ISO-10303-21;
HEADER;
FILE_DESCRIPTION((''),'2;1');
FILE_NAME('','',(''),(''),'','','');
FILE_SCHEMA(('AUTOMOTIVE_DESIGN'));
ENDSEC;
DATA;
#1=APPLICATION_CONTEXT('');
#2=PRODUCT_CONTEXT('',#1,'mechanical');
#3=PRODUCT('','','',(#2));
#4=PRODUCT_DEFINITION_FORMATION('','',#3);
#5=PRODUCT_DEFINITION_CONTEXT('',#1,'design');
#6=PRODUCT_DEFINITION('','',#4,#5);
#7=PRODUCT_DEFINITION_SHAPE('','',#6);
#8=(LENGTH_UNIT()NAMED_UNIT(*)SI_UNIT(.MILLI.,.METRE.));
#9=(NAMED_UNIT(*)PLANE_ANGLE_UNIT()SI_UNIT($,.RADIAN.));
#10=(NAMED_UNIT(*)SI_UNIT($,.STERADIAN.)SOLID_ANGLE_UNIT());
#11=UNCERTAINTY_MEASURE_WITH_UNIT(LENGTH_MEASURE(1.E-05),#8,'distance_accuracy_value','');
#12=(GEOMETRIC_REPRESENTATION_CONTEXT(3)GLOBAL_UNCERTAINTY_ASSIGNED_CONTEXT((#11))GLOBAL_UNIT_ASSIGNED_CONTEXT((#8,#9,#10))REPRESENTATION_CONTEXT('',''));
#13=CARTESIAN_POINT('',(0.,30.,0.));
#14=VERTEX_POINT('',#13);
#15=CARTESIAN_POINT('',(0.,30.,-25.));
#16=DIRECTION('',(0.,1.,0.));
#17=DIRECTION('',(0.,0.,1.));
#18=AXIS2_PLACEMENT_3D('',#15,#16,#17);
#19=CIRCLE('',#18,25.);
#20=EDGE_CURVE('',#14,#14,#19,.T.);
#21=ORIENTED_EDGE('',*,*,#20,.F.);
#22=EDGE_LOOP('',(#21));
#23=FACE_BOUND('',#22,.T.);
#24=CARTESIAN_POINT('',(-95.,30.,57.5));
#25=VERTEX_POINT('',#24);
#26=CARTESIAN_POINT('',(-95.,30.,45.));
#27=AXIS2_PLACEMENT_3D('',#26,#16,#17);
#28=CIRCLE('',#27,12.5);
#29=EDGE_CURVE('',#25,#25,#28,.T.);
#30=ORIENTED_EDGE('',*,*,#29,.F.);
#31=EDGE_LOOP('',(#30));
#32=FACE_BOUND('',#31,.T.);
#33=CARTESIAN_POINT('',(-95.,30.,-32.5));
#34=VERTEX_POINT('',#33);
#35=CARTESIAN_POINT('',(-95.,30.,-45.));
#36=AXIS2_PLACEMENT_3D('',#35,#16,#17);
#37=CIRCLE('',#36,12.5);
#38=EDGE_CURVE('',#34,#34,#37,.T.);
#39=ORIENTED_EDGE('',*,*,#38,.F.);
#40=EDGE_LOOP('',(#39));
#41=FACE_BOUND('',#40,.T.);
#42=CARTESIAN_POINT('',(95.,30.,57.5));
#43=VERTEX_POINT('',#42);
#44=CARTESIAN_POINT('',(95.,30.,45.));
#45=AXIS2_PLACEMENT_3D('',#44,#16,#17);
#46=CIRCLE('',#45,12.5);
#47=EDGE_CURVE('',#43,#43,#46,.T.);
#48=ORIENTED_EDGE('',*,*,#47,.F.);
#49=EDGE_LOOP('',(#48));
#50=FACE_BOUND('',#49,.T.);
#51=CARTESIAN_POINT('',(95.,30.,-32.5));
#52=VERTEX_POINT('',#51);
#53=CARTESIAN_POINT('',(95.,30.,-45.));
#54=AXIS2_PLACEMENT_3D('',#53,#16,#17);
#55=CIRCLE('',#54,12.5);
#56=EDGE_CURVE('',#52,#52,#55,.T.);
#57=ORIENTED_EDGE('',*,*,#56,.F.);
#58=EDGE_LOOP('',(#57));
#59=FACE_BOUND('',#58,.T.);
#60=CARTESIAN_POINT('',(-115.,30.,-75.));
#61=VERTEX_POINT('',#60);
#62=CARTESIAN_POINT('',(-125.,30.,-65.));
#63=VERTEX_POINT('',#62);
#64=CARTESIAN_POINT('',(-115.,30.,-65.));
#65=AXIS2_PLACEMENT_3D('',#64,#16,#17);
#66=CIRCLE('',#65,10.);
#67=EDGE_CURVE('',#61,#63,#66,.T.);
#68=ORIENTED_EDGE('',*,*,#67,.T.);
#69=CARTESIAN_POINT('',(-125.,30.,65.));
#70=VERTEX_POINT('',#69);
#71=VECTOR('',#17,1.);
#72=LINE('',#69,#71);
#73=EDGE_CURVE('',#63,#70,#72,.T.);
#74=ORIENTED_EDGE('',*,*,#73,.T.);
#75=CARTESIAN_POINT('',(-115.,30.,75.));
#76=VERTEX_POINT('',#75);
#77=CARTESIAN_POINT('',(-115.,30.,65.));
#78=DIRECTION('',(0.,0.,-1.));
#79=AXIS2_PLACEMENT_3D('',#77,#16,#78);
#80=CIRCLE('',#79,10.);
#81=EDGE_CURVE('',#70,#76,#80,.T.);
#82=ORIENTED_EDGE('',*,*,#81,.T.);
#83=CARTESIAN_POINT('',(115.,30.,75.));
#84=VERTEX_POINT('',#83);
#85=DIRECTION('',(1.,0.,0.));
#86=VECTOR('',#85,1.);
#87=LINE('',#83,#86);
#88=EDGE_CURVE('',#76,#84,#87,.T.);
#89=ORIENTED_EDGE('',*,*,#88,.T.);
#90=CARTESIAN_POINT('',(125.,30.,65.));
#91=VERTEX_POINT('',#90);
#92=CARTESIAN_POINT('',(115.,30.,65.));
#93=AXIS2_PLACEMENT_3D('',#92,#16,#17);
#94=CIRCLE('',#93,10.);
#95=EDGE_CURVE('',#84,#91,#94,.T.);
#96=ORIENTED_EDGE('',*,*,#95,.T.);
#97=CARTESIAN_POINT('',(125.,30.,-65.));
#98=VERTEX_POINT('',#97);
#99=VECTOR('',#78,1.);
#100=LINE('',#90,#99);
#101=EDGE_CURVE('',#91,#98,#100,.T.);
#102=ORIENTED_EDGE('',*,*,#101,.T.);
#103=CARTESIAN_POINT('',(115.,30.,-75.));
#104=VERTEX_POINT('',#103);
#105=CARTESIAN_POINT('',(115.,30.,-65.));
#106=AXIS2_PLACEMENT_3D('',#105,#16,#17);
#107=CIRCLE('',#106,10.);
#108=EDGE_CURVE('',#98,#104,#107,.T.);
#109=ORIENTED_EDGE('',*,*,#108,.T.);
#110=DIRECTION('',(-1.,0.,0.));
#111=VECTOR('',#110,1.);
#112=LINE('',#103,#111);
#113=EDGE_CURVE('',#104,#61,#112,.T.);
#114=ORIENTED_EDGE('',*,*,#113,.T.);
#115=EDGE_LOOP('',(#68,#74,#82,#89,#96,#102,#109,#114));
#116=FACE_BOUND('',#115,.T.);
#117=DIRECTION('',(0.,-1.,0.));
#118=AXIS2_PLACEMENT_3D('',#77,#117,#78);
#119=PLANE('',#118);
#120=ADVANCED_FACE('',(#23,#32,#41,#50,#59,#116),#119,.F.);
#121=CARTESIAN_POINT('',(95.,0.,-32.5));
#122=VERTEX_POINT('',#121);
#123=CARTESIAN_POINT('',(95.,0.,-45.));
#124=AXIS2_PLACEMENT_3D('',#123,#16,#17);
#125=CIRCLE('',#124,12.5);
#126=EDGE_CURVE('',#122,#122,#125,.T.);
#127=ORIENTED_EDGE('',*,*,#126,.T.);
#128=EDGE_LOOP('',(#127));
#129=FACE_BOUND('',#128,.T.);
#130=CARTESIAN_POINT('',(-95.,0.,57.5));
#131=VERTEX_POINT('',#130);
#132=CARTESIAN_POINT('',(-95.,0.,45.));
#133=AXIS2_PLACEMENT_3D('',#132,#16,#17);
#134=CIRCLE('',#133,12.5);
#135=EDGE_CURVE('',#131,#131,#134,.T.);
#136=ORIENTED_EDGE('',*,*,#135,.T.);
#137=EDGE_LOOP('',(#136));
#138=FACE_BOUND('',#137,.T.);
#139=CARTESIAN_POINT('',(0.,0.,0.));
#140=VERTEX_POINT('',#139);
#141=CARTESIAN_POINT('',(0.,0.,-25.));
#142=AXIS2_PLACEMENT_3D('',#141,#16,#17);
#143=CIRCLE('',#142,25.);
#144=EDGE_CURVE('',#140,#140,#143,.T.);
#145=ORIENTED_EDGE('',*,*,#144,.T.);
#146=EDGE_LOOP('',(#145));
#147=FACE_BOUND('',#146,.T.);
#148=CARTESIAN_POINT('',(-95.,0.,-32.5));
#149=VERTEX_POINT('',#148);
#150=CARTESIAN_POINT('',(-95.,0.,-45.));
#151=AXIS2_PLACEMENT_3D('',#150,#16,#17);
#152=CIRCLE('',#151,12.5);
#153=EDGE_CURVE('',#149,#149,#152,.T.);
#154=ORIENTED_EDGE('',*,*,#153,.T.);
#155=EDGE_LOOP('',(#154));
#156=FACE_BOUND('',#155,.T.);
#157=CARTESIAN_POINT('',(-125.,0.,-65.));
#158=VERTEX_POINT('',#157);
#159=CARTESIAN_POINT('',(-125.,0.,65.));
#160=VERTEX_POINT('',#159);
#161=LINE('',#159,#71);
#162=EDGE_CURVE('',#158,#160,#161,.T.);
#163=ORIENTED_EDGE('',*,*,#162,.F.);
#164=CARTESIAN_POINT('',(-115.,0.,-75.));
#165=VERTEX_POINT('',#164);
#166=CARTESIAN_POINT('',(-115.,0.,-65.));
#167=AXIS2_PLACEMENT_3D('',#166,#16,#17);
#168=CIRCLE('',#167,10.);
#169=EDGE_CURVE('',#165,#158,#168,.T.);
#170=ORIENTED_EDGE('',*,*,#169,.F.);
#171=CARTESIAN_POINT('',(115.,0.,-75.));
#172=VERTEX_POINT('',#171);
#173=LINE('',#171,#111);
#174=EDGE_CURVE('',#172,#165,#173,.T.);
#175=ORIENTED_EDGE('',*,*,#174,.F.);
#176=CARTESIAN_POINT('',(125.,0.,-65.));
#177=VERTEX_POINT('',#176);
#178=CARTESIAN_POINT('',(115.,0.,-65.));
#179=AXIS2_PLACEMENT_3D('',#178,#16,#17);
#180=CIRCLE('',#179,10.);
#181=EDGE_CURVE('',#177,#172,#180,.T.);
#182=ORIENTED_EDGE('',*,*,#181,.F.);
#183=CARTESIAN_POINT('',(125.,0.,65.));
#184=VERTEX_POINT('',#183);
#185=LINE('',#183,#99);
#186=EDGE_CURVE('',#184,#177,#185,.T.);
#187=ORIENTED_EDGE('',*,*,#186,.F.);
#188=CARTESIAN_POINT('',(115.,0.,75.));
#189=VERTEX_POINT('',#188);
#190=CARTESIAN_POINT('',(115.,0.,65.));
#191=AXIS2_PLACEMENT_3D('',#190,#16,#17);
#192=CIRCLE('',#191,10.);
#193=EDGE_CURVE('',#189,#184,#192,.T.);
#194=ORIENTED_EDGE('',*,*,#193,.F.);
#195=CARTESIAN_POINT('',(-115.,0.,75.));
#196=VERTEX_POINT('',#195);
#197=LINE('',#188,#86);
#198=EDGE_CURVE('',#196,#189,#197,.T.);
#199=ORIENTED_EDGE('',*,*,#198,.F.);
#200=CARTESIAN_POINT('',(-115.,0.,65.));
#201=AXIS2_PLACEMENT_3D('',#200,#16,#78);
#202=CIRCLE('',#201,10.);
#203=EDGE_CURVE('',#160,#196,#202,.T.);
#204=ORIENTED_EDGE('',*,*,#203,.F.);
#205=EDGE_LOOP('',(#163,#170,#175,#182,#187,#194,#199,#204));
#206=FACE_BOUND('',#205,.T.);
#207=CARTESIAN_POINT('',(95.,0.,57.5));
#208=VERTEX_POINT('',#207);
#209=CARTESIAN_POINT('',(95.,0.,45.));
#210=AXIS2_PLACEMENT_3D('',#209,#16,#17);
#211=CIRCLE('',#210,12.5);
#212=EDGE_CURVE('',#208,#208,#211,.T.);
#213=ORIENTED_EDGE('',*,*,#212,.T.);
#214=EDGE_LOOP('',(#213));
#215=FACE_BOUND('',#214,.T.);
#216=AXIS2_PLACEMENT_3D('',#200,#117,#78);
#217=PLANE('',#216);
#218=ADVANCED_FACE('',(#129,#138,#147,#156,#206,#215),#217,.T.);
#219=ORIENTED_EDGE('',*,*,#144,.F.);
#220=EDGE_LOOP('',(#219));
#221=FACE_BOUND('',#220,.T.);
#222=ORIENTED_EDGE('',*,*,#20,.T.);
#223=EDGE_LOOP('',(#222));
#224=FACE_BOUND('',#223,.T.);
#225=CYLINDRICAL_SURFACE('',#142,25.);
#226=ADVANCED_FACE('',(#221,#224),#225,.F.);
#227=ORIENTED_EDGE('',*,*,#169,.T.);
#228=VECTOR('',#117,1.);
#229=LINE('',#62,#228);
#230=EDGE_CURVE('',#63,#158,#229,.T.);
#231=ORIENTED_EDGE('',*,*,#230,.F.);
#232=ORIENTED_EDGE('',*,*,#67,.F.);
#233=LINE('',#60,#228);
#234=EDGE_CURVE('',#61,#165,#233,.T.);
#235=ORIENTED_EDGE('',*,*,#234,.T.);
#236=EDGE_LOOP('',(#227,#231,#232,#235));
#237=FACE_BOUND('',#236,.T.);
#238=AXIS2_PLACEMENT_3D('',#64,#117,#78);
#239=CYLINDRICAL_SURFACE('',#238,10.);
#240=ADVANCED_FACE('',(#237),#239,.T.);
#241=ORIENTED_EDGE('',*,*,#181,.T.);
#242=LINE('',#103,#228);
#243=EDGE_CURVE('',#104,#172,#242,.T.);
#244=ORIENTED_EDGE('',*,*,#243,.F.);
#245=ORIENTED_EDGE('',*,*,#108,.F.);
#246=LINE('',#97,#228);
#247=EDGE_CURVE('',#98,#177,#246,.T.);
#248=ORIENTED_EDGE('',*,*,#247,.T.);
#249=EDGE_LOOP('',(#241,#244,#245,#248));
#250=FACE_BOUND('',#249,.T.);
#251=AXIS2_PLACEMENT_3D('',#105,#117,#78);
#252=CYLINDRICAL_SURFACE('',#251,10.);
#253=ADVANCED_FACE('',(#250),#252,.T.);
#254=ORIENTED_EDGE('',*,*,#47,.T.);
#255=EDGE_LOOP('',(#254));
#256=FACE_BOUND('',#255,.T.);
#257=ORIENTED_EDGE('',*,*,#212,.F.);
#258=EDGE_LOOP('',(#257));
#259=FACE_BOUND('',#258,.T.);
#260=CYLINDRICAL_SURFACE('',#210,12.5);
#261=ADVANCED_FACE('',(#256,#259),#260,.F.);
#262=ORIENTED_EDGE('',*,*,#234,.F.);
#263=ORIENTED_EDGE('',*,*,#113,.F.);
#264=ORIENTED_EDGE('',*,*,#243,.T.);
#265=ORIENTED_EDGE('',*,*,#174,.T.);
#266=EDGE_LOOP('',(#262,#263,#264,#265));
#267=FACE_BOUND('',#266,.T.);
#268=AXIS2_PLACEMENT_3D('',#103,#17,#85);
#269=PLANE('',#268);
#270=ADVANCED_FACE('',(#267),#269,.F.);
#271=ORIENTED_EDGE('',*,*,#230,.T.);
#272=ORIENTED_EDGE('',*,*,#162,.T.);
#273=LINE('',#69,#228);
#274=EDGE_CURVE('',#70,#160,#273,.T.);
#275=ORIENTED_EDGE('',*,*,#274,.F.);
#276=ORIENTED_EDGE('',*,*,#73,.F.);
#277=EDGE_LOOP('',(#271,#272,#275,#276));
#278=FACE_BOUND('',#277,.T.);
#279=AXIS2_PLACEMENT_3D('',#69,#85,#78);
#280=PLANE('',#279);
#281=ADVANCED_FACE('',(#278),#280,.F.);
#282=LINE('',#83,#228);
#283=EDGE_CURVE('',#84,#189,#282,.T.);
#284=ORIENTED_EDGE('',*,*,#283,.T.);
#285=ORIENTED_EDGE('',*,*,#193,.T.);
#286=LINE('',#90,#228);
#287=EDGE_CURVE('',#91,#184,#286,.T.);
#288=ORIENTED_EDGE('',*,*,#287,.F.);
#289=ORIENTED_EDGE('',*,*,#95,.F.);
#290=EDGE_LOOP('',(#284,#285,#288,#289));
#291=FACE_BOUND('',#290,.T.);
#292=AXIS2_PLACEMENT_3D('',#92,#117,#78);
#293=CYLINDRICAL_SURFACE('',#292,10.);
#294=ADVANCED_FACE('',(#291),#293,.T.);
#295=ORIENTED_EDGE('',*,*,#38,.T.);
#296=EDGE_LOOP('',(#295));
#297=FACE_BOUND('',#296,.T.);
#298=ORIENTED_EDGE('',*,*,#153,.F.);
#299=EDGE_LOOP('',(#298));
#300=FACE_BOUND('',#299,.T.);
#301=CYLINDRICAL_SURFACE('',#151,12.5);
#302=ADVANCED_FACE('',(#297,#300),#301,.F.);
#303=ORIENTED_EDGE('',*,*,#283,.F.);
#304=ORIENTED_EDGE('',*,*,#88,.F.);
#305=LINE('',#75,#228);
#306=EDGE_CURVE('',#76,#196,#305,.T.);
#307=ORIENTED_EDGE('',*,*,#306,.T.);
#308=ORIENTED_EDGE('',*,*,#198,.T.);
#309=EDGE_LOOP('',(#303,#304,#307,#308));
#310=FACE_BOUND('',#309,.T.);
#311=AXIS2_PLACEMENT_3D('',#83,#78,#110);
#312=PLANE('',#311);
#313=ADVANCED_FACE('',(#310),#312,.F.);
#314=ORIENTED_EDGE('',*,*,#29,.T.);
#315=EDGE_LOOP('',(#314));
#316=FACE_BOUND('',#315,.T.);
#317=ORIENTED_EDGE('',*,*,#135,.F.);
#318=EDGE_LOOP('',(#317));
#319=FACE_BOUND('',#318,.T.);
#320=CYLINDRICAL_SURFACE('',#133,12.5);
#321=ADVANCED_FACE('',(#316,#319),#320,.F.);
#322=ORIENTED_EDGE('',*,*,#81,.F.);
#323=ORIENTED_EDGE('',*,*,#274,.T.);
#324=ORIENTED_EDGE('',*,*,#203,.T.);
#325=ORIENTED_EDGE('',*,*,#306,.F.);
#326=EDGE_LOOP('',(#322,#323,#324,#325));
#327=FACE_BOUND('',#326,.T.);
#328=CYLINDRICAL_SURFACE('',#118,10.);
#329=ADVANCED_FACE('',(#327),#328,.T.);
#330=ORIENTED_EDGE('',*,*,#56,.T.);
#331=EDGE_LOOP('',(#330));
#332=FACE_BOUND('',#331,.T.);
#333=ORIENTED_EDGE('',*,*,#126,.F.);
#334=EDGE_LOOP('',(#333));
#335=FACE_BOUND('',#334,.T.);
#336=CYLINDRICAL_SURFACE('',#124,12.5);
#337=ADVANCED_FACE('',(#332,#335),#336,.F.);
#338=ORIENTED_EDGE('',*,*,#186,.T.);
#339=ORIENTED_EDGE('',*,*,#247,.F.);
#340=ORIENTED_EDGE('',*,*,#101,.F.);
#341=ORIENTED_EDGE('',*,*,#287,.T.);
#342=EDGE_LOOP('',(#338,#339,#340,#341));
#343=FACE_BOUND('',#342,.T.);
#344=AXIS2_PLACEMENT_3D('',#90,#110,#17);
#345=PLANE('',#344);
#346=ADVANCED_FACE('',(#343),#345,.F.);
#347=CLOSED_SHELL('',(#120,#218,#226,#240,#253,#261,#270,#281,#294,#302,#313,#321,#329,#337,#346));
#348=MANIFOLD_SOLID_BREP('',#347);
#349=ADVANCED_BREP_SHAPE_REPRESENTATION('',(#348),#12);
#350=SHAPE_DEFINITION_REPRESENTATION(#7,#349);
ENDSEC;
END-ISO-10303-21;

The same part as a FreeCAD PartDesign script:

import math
import FreeCAD as App
import Part
import Sketcher

V = App.Vector
Q = App.Units.Quantity

doc = App.newDocument("Part")
body = doc.addObject("PartDesign::Body", "Body")

sketch1 = body.newObject("Sketcher::SketchObject", "Sketch")
sketch1.AttachmentSupport = (doc.getObject("XZ_Plane"), [""])
sketch1.MapMode = "FlatFace"
sketch1.addGeometry([
    Part.LineSegment(V(-115, 75, 0), V(115, 75, 0)),
    Part.ArcOfCircle(Part.Circle(V(115, 65, 0), V(0, 0, 1), 10), math.radians(0), math.radians(90)),
    Part.LineSegment(V(125, 65, 0), V(125, -65, 0)),
    Part.ArcOfCircle(Part.Circle(V(115, -65, 0), V(0, 0, 1), 10), math.radians(-90), math.radians(0)),
    Part.LineSegment(V(115, -75, 0), V(-115, -75, 0)),
    Part.ArcOfCircle(Part.Circle(V(-115, -65, 0), V(0, 0, 1), 10), math.radians(180), math.radians(270)),
    Part.LineSegment(V(-125, -65, 0), V(-125, 65, 0)),
    Part.ArcOfCircle(Part.Circle(V(-115, 65, 0), V(0, 0, 1), 10), math.radians(90), math.radians(180)),
], False)
sketch1.addConstraint([
    Sketcher.Constraint("Tangent", 0, 2, 1, 2),
    Sketcher.Constraint("Tangent", 1, 1, 2, 1),
    Sketcher.Constraint("Tangent", 2, 2, 3, 2),
    Sketcher.Constraint("Tangent", 3, 1, 4, 1),
    Sketcher.Constraint("Tangent", 4, 2, 5, 2),
    Sketcher.Constraint("Tangent", 5, 1, 6, 1),
    Sketcher.Constraint("Tangent", 6, 2, 7, 2),
    Sketcher.Constraint("Tangent", 7, 1, 0, 1),
    Sketcher.Constraint("Horizontal", 0),
    Sketcher.Constraint("Vertical", 2),
    Sketcher.Constraint("Horizontal", 4),
    Sketcher.Constraint("Vertical", 6),
    Sketcher.Constraint("Equal", 1, 3),
    Sketcher.Constraint("Equal", 3, 5),
    Sketcher.Constraint("Equal", 5, 7),
    Sketcher.Constraint("Symmetric", 1, 3, 5, 3, -1, 1),
    Sketcher.Constraint("Radius", 1, Q("10 mm")),
    Sketcher.Constraint("DistanceX", 0, 1, 0, 2, Q("230 mm")),
    Sketcher.Constraint("DistanceY", 2, 2, 2, 1, Q("130 mm")),
])
pad1 = body.newObject("PartDesign::Pad", "Pad")
pad1.Profile = sketch1
pad1.Length = 30
pad1.Reversed = True

sketch2 = body.newObject("Sketcher::SketchObject", "Sketch001")
sketch2.AttachmentSupport = (doc.getObject("XZ_Plane"), [""])
sketch2.MapMode = "FlatFace"
sketch2.AttachmentOffset = App.Placement(V(0, 0, -30), App.Rotation())
sketch2.addGeometry([
    Part.Circle(V(0, -25, 0), V(0, 0, 1), 25),
    Part.Circle(V(-95, -45, 0), V(0, 0, 1), 12),
    Part.Circle(V(95, -45, 0), V(0, 0, 1), 12),
    Part.Circle(V(95, 45, 0), V(0, 0, 1), 12),
    Part.Circle(V(-95, 45, 0), V(0, 0, 1), 12),
], False)
sketch2.addConstraint([
    Sketcher.Constraint("Equal", 1, 2),
    Sketcher.Constraint("Equal", 2, 3),
    Sketcher.Constraint("Equal", 3, 4),
    Sketcher.Constraint("Symmetric", 1, 3, 3, 3, -1, 1),
    Sketcher.Constraint("Symmetric", 2, 3, 4, 3, -1, 1),
    Sketcher.Constraint("Symmetric", 1, 3, 2, 3, -2),
    Sketcher.Constraint("PointOnObject", 0, 3, -2),
    Sketcher.Constraint("Diameter", 0, Q("50 mm")),
    Sketcher.Constraint("Diameter", 1, Q("25 mm")),
    Sketcher.Constraint("DistanceY", 0, 3, -1, 1, Q("25 mm")),
    Sketcher.Constraint("DistanceX", 1, 3, -1, 1, Q("95 mm")),
    Sketcher.Constraint("DistanceY", 1, 3, -1, 1, Q("45 mm")),
])
pocket1 = body.newObject("PartDesign::Pocket", "Pocket")
pocket1.Profile = sketch2
pocket1.Type = "ThroughAll"
pocket1.Reversed = True

doc.recompute()
